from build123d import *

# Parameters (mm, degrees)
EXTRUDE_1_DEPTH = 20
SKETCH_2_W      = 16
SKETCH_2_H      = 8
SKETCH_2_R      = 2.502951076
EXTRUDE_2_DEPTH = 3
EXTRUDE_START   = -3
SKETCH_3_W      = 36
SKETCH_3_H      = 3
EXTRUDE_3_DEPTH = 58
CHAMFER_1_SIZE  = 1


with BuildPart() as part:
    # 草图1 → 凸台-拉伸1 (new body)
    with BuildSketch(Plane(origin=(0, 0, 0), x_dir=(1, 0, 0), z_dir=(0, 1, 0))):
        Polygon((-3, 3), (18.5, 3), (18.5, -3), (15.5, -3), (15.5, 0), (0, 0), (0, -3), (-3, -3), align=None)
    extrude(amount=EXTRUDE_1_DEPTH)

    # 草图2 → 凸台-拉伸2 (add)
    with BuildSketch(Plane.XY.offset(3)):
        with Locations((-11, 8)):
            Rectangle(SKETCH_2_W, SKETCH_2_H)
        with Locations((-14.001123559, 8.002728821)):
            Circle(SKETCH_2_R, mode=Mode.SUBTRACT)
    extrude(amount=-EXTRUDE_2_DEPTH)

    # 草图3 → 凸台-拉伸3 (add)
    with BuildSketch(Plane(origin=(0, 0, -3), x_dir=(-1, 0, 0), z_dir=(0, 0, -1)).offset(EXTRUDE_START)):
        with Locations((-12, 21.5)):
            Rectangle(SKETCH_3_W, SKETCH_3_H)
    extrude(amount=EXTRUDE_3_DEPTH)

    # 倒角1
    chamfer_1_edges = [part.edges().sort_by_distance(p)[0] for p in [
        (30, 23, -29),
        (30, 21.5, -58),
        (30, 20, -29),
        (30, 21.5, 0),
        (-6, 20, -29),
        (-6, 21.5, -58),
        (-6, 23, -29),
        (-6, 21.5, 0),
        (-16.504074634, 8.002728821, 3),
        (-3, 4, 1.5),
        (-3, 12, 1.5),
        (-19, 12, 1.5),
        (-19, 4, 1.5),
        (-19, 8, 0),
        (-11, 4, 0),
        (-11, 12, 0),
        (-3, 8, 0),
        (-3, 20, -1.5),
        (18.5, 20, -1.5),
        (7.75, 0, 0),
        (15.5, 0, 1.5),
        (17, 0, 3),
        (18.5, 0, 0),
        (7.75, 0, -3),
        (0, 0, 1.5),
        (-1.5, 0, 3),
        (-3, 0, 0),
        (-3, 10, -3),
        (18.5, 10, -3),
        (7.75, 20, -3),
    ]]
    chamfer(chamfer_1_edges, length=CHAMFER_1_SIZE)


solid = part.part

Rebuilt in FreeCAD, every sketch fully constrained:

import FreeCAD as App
import Part
import Sketcher

V = App.Vector
Q = App.Units.Quantity


def edges_at(feature, points):
    """Names of the edges that pass closest to the given points."""
    edges = feature.Shape.Edges
    near = lambda p: min(range(len(edges)), key=lambda i: edges[i].distToShape(Part.Vertex(*p))[0])
    return sorted({f"Edge{near(p) + 1}" for p in points})


def add_polygon(sketch, points):
    """Adds a closed chain of lines whose ends are joined by coincident constraints."""
    first, n = sketch.GeometryCount, len(points)
    for a, b in zip(points, points[1:] + points[:1]):
        sketch.addGeometry(Part.LineSegment(App.Vector(*a, 0), App.Vector(*b, 0)), False)
    for i in range(n):
        sketch.addConstraint(Sketcher.Constraint("Coincident", first + i, 2, first + (i + 1) % n, 1))

doc = App.newDocument("Part")
body = doc.addObject("PartDesign::Body", "Body")

# Sketch on XZ plane
sketch1 = body.newObject("Sketcher::SketchObject", "Sketch")
sketch1.AttachmentSupport = (doc.getObject("XZ_Plane"), [""])
sketch1.MapMode = "FlatFace"
add_polygon(sketch1, [(18.5, -3), (-3, -3), (-3, 3), (0, 3), (0, 0), (15.5, 0), (15.5, 3), (18.5, 3)])  # lines 0-7
sketch1.addConstraint(Sketcher.Constraint("Horizontal", 0))
sketch1.addConstraint(Sketcher.Constraint("Vertical", 1))
sketch1.addConstraint(Sketcher.Constraint("Horizontal", 2))
sketch1.addConstraint(Sketcher.Constraint("Vertical", 3))
sketch1.addConstraint(Sketcher.Constraint("Horizontal", 4))
sketch1.addConstraint(Sketcher.Constraint("Vertical", 5))
sketch1.addConstraint(Sketcher.Constraint("Horizontal", 6))
sketch1.addConstraint(Sketcher.Constraint("Vertical", 7))
sketch1.addConstraint(Sketcher.Constraint("Coincident", 3, 2, -1, 1))
sketch1.addConstraint(Sketcher.Constraint("Horizontal", 2, 2, 5, 2))
sketch1.addConstraint(Sketcher.Constraint("Equal", 2, 6))
sketch1.addConstraint(Sketcher.Constraint("Equal", 6, 3))
sketch1.addConstraint(Sketcher.Constraint("DistanceX", 2, 1, 2, 2, Q("3 mm")))
sketch1.addConstraint(Sketcher.Constraint("DistanceY", 1, 1, 1, 2, Q("6 mm")))
sketch1.addConstraint(Sketcher.Constraint("DistanceX", 0, 2, 0, 1, Q("21.5 mm")))
pad1 = body.newObject("PartDesign::Pad", "Pad")
pad1.Profile = sketch1
pad1.Length = 20
pad1.Reversed = True

# Sketch on XY plane
sketch2 = body.newObject("Sketcher::SketchObject", "Sketch001")
sketch2.AttachmentSupport = (doc.getObject("XY_Plane"), [""])
sketch2.MapMode = "FlatFace"
sketch2.AttachmentOffset = App.Placement(V(0, 0, 3), App.Rotation())
add_polygon(sketch2, [(-19, 12), (-19, 4), (-3, 4), (-3, 12)])  # lines 0-3
sketch2.addGeometry(Part.Circle(V(-14, 8, 0), V(0, 0, 1), 2.5), False)  # 4
sketch2.addConstraint(Sketcher.Constraint("Vertical", 0))
sketch2.addConstraint(Sketcher.Constraint("Horizontal", 1))
sketch2.addConstraint(Sketcher.Constraint("Vertical", 2))
sketch2.addConstraint(Sketcher.Constraint("Horizontal", 3))
sketch2.addConstraint(Sketcher.Constraint("DistanceX", 1, 1, 1, 2, Q("16 mm")))
sketch2.addConstraint(Sketcher.Constraint("DistanceY", 0, 2, 0, 1, Q("8 mm")))
sketch2.addConstraint(Sketcher.Constraint("DistanceX", 0, 2, -1, 1, Q("19 mm")))
sketch2.addConstraint(Sketcher.Constraint("DistanceY", -1, 1, 0, 2, Q("4 mm")))
sketch2.addConstraint(Sketcher.Constraint("Diameter", 4, Q("5.005902 mm")))
sketch2.addConstraint(Sketcher.Constraint("DistanceY", -1, 1, 4, 3, Q("8.002729 mm")))
sketch2.addConstraint(Sketcher.Constraint("DistanceX", 4, 3, -1, 1, Q("14.001124 mm")))
pad2 = body.newObject("PartDesign::Pad", "Pad001")
pad2.Profile = sketch2
pad2.Length = 3
pad2.Reversed = True

# Sketch on XY plane
sketch3 = body.newObject("Sketcher::SketchObject", "Sketch002")
sketch3.AttachmentSupport = (doc.getObject("XY_Plane"), [""])
sketch3.MapMode = "FlatFace"
add_polygon(sketch3, [(30, 23), (30, 20), (-6, 20), (-6, 23)])  # lines 0-3
sketch3.addConstraint(Sketcher.Constraint("Vertical", 0))
sketch3.addConstraint(Sketcher.Constraint("Horizontal", 1))
sketch3.addConstraint(Sketcher.Constraint("Vertical", 2))
sketch3.addConstraint(Sketcher.Constraint("Horizontal", 3))
sketch3.addConstraint(Sketcher.Constraint("DistanceX", 1, 2, 1, 1, Q("36 mm")))
sketch3.addConstraint(Sketcher.Constraint("DistanceY", 0, 2, 0, 1, Q("3 mm")))
sketch3.addConstraint(Sketcher.Constraint("DistanceX", -1, 1, 0, 2, Q("30 mm")))
sketch3.addConstraint(Sketcher.Constraint("DistanceY", -1, 1, 0, 2, Q("20 mm")))
pad3 = body.newObject("PartDesign::Pad", "Pad002")
pad3.Profile = sketch3
pad3.Length = 58
pad3.Reversed = True
doc.recompute()

chamfer = body.newObject("PartDesign::Chamfer", "Chamfer")
chamfer.Base = (pad3, edges_at(pad3, [
    (30, 23, -29),
    (30, 21.5, -58),
    (30, 20, -29),
    (30, 21.5, 0),
    (-6, 20, -29),
    (-6, 21.5, -58),
    (-6, 23, -29),
    (-6, 21.5, 0),
    (-16.504, 8.003, 3),
    (-3, 4, 1.5),
    (-3, 12, 1.5),
    (-19, 12, 1.5),
    (-19, 4, 1.5),
    (-19, 8, 0),
    (-11, 4, 0),
    (-11, 12, 0),
    (-3, 8, 0),
    (-3, 20, -1.5),
    (18.5, 20, -1.5),
    (7.75, 0, 0),
    (15.5, 0, 1.5),
    (17, 0, 3),
    (18.5, 0, 0),
    (7.75, 0, -3),
    (0, 0, 1.5),
    (-1.5, 0, 3),
    (-3, 0, 0),
    (-3, 10, -3),
    (18.5, 10, -3),
    (7.75, 20, -3),
]))
chamfer.Size = 1

doc.recompute()
